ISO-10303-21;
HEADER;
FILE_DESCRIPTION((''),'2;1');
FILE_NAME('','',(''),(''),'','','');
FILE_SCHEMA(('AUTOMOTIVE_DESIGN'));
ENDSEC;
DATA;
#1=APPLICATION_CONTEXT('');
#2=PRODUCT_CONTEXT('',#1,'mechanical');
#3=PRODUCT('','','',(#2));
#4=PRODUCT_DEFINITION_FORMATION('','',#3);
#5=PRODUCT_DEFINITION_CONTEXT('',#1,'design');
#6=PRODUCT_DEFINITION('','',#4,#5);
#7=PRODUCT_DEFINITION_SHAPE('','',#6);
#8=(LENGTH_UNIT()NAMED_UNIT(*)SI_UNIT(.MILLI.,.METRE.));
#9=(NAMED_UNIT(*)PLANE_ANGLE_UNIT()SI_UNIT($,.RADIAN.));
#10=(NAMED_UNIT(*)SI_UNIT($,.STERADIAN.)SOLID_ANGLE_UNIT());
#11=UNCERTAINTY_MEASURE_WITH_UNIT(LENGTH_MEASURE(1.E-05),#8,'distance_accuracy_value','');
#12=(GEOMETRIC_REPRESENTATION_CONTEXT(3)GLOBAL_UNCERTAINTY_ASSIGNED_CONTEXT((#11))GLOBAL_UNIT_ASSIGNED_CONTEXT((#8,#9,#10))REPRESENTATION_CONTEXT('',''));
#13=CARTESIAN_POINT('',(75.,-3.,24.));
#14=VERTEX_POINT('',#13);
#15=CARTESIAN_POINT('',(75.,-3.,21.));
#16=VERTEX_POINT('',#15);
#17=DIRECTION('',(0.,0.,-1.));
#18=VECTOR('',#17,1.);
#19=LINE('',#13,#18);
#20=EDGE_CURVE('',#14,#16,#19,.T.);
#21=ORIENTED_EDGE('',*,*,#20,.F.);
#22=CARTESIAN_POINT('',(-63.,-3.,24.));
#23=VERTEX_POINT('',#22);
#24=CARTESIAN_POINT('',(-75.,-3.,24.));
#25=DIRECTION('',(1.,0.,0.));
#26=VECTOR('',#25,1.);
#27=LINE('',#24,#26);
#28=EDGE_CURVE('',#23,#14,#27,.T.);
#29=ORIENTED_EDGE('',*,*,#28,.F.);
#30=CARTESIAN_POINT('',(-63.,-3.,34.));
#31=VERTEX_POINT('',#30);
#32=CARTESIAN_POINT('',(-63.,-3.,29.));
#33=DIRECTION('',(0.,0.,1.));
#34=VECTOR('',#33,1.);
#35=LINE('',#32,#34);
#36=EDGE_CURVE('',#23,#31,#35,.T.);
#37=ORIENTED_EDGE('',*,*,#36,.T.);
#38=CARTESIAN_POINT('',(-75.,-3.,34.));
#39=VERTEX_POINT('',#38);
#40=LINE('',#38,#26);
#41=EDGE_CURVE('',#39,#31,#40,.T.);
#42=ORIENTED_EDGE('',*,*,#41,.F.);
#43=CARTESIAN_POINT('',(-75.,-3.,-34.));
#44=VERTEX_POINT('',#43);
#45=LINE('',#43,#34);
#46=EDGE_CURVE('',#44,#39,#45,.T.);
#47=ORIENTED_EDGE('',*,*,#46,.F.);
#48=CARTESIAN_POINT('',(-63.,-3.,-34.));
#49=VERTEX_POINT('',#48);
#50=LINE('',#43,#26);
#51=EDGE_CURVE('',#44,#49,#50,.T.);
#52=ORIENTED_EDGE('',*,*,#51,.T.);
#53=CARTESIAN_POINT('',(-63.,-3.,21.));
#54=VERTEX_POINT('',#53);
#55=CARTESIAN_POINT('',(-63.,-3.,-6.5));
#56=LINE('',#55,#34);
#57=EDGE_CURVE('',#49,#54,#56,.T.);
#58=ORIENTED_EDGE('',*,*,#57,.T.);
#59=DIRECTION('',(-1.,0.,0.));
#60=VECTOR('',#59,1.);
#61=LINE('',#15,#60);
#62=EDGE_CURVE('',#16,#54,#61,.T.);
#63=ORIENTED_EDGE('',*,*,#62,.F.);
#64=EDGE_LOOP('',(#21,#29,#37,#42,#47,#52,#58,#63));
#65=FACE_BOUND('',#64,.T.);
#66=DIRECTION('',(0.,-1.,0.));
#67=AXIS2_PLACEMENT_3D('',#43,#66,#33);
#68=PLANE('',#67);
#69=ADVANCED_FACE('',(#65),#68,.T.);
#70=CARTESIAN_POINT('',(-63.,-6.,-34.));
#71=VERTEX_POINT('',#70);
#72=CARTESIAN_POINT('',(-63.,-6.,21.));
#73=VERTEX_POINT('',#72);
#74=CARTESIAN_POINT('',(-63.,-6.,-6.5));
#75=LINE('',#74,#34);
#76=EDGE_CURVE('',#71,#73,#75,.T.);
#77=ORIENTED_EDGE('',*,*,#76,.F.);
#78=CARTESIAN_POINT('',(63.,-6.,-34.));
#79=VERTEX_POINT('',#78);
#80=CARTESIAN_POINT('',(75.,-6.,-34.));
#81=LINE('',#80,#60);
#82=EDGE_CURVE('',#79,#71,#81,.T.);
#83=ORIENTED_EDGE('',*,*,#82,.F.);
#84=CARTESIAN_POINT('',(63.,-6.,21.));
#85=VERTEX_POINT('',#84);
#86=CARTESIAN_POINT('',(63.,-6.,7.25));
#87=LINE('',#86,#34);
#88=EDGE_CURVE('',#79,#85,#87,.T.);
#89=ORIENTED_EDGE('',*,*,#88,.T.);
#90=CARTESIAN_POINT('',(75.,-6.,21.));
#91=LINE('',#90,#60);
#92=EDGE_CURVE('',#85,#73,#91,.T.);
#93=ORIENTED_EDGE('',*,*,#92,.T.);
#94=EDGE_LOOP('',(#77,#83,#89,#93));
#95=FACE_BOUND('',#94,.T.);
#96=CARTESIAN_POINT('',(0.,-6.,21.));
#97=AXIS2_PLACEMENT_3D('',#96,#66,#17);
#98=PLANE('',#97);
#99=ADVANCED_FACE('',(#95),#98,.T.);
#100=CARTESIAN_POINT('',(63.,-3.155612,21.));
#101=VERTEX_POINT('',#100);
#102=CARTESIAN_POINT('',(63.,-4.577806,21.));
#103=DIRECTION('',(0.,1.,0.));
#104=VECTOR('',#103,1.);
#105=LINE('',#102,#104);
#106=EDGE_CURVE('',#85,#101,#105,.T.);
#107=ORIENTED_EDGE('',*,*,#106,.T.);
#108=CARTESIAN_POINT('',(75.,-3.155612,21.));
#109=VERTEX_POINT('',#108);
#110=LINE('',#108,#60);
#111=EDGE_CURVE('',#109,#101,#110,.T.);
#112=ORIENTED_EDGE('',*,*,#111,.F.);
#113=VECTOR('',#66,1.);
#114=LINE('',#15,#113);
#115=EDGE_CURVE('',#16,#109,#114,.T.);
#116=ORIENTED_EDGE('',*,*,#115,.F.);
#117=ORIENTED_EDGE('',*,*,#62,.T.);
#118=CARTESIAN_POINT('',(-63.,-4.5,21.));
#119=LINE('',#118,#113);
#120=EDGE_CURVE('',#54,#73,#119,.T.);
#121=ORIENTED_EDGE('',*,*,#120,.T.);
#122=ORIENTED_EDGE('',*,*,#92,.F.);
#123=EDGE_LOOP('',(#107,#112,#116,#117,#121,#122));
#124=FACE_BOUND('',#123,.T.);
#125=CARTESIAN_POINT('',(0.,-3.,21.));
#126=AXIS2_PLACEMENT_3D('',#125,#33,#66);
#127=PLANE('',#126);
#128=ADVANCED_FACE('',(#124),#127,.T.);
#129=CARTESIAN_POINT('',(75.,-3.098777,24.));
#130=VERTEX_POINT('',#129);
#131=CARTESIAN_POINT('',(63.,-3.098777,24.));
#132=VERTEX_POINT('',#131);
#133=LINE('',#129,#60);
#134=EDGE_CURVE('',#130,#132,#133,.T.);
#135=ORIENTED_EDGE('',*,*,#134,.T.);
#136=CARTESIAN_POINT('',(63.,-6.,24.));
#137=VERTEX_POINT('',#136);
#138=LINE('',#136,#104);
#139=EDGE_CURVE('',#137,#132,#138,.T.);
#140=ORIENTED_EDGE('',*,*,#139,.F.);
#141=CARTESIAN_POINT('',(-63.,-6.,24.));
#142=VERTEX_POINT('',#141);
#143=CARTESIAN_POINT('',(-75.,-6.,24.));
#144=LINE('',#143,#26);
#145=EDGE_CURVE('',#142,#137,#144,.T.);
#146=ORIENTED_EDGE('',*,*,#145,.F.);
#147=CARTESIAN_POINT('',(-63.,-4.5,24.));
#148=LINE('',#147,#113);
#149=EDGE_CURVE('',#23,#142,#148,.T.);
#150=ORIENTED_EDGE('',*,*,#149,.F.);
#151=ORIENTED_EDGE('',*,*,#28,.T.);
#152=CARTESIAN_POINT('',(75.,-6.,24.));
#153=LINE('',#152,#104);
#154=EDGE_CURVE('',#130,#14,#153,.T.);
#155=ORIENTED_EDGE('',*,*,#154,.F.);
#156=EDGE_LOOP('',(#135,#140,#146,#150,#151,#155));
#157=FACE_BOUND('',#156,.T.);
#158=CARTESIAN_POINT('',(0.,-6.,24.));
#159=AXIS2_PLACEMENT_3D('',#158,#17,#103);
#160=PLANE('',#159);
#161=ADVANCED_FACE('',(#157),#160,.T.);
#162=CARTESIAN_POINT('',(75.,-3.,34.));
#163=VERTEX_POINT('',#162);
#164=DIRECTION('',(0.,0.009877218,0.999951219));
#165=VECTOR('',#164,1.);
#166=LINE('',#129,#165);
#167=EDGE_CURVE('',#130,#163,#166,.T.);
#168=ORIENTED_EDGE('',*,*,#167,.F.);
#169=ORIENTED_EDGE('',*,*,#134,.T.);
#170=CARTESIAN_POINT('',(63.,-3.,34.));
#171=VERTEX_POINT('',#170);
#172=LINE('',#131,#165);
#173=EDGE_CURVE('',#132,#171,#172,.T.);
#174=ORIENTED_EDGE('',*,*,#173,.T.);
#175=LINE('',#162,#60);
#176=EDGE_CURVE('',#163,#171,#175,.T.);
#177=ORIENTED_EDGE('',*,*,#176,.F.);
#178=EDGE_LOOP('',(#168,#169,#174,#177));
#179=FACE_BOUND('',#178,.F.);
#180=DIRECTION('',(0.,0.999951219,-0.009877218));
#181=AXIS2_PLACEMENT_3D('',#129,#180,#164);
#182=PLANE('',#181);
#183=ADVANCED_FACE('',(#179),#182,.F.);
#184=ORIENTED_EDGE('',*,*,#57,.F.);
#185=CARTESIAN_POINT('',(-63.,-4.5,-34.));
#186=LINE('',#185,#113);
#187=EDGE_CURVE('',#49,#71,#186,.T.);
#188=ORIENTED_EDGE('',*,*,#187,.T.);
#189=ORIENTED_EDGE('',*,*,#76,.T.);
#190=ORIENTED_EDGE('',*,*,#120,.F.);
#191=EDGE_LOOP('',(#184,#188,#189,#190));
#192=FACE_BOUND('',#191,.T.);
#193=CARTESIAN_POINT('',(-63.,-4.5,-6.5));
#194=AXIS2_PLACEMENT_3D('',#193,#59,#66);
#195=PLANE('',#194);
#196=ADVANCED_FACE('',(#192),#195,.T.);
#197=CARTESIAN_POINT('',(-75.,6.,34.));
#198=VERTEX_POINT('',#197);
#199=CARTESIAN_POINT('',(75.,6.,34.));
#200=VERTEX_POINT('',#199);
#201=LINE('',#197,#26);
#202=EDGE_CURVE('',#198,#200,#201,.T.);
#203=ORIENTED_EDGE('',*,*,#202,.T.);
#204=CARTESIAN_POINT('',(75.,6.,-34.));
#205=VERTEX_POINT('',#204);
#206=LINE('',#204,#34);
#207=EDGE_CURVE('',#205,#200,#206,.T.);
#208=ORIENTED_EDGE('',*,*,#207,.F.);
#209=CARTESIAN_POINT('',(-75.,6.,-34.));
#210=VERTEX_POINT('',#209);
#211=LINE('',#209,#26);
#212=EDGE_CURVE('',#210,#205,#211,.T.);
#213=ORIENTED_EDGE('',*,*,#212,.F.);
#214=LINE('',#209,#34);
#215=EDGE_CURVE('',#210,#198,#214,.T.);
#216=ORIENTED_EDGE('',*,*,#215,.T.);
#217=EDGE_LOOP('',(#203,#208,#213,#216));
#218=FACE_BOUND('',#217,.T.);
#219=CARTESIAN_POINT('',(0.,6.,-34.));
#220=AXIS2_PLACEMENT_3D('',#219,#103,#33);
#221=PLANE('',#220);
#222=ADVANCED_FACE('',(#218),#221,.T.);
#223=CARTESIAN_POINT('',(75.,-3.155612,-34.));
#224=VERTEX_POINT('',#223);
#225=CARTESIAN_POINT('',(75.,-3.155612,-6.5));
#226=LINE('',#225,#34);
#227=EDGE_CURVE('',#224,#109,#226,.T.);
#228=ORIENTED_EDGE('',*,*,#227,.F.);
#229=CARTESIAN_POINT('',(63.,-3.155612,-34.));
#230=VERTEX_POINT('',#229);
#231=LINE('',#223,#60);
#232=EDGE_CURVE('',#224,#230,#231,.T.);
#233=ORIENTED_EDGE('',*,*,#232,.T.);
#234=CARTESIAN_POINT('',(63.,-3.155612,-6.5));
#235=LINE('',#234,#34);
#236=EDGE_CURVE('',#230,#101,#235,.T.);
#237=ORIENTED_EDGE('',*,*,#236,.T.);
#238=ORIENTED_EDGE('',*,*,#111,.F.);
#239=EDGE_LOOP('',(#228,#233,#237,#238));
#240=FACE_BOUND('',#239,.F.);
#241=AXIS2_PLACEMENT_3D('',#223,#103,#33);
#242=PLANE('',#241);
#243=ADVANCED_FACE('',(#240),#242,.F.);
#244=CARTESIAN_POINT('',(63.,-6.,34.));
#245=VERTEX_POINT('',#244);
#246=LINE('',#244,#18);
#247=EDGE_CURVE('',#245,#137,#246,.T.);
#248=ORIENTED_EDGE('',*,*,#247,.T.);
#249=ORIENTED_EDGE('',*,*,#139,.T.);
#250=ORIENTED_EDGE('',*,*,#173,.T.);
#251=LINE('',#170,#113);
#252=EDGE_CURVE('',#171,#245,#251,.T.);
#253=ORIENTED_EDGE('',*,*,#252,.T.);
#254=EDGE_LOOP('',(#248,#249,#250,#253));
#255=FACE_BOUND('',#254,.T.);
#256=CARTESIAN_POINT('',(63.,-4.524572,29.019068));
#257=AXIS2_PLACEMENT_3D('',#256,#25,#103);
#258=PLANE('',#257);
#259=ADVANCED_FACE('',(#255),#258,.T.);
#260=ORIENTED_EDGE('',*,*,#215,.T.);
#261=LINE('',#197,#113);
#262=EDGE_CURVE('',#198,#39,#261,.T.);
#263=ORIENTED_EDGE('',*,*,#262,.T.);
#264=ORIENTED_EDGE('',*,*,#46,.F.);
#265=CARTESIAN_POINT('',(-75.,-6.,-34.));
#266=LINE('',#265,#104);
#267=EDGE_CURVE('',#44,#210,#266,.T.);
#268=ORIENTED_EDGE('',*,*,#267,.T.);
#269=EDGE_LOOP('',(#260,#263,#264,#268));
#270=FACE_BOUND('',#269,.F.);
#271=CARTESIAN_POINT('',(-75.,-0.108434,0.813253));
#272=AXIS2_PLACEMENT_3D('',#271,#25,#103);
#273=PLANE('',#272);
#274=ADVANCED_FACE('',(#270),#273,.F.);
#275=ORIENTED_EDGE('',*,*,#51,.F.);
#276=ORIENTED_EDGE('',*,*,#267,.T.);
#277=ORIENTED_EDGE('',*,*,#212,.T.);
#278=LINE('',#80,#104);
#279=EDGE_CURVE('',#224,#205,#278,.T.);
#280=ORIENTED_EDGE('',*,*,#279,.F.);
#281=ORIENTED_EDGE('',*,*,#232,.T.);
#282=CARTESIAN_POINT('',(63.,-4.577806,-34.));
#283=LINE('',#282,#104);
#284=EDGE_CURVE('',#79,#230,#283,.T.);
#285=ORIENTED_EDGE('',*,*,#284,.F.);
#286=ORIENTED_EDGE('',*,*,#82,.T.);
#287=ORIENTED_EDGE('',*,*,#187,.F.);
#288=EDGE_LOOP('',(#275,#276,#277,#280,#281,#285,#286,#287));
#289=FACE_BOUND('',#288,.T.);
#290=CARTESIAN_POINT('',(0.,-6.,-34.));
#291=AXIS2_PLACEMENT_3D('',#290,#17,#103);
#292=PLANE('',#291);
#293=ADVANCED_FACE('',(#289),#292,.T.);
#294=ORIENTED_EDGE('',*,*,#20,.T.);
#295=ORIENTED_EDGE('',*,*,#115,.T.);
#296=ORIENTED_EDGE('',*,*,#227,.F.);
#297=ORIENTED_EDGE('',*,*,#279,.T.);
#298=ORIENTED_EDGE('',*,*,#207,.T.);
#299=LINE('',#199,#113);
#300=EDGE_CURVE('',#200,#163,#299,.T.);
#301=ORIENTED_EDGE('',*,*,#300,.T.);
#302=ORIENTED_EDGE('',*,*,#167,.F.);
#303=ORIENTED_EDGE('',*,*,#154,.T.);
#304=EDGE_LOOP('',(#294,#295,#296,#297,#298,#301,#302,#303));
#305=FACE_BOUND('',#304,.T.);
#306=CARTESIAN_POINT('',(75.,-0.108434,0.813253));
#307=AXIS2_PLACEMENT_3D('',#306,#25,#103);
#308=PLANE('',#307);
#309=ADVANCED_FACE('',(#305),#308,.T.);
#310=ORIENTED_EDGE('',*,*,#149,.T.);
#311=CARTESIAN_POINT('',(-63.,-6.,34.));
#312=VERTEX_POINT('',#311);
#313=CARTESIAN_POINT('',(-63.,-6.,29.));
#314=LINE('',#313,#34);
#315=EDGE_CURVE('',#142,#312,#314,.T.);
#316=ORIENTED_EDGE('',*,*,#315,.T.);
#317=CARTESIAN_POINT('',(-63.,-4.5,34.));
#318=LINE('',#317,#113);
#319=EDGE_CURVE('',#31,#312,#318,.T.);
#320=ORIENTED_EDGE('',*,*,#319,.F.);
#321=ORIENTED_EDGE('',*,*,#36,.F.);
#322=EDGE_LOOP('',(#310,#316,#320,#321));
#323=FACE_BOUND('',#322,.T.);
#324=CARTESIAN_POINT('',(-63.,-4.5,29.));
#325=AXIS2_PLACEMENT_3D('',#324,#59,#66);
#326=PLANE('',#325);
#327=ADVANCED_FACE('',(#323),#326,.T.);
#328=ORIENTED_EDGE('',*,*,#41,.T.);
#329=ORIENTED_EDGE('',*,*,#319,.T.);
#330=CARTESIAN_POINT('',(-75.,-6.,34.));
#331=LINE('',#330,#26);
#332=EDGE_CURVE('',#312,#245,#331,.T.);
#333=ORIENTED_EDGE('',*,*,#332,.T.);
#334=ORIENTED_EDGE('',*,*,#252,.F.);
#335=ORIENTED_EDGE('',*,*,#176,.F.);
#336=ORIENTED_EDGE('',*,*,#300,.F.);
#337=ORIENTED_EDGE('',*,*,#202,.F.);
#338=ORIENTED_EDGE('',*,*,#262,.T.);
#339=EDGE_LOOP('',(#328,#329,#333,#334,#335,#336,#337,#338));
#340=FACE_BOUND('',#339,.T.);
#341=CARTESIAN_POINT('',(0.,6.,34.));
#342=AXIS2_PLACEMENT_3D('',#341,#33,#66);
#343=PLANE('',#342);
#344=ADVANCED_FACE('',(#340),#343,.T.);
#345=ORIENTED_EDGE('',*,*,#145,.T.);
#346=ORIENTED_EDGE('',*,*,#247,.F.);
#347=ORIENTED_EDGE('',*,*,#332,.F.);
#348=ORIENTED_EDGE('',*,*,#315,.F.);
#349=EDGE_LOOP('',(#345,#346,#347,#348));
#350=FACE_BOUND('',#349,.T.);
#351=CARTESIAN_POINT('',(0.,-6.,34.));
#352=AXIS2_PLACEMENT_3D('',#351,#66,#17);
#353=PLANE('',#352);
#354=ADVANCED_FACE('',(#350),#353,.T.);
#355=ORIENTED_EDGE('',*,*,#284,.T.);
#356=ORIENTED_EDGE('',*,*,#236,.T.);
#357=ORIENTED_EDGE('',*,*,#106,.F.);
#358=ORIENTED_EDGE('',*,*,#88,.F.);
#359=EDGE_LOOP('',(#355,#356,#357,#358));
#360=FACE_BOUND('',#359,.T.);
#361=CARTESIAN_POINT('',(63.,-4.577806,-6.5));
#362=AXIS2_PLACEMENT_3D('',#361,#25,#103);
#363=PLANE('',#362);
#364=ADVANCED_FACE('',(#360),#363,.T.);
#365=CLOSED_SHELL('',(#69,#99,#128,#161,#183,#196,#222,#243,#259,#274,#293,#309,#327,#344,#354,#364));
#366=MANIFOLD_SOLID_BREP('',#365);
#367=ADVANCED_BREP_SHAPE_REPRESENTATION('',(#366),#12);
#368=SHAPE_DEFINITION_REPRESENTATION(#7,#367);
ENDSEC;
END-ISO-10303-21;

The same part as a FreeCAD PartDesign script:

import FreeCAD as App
import Part
import Sketcher

V = App.Vector


def add_polygon(sketch, points):
    """Adds a closed chain of lines whose ends are joined by coincident constraints."""
    first, n = sketch.GeometryCount, len(points)
    for a, b in zip(points, points[1:] + points[:1]):
        sketch.addGeometry(Part.LineSegment(App.Vector(*a, 0), App.Vector(*b, 0)), False)
    for i in range(n):
        sketch.addConstraint(Sketcher.Constraint("Coincident", first + i, 2, first + (i + 1) % n, 1))

doc = App.newDocument("Part")
params = doc.addObject("Spreadsheet::Sheet", "Params")
for row, (alias, value) in enumerate([
    ("sketch1_width", "12 mm"),
    ("sketch1_width2", "3 mm"),
    ("sketch1_height", "68 mm"),
    ("sketch1_height2", "10 mm"),
    ("pad1_length", "150 mm"),
    ("sketch2_height", "55 mm"),
    ("pocket1_length", "12 mm"),
    ("sketch3_width", "3 mm"),
    ("sketch3_height", "10 mm"),
    ("pocket2_length", "12 mm"),
    ("sketch4_width", "3 mm"),
    ("sketch4_height", "55 mm"),
    ("sketch4_height2", "10 mm"),
    ("pocket3_length", "12 mm"),
], start=1):
    params.set(f"A{row}", alias)
    params.set(f"B{row}", "=" + value)
    params.setAlias(f"B{row}", alias)

body = doc.addObject("PartDesign::Body", "Body")

sketch1 = body.newObject("Sketcher::SketchObject", "Sketch")
sketch1.AttachmentSupport = (doc.getObject("YZ_Plane"), [""])
sketch1.MapMode = "FlatFace"
add_polygon(sketch1, [(-6, -34), (6, -34), (6, 34), (-6, 34), (-6, 24), (-3, 24), (-3, 21), (-6, 21)])
sketch1.addConstraint(Sketcher.Constraint("Horizontal", 0))
sketch1.addConstraint(Sketcher.Constraint("Vertical", 1))
sketch1.addConstraint(Sketcher.Constraint("Horizontal", 2))
sketch1.addConstraint(Sketcher.Constraint("Vertical", 3))
sketch1.addConstraint(Sketcher.Constraint("Horizontal", 4))
sketch1.addConstraint(Sketcher.Constraint("Vertical", 5))
sketch1.addConstraint(Sketcher.Constraint("Horizontal", 6))
sketch1.addConstraint(Sketcher.Constraint("Vertical", 7))
sketch1.addConstraint(Sketcher.Constraint("Symmetric", 0, 2, 2, 2, -1, 1))
sketch1.addConstraint(Sketcher.Constraint("Vertical", 3, 2, 6, 2))
sketch1.addConstraint(Sketcher.Constraint("Equal", 6, 5))
sketch1.addConstraint(Sketcher.Constraint("DistanceX", 0, 1, 0, 2, 12.0))
sketch1.addConstraint(Sketcher.Constraint("DistanceX", 4, 1, 4, 2, 3.0))
sketch1.addConstraint(Sketcher.Constraint("DistanceY", 1, 1, 1, 2, 68.0))
sketch1.addConstraint(Sketcher.Constraint("DistanceY", 3, 2, 3, 1, 10.0))
sketch1.setExpression("Constraints[19]", "Params.sketch1_width")
sketch1.setExpression("Constraints[20]", "Params.sketch1_width2")
sketch1.setExpression("Constraints[21]", "Params.sketch1_height")
sketch1.setExpression("Constraints[22]", "Params.sketch1_height2")
pad1 = body.newObject("PartDesign::Pad", "Pad")
pad1.Profile = sketch1
pad1.setExpression("Length", "Params.pad1_length")
pad1.Midplane = True

sketch2 = body.newObject("Sketcher::SketchObject", "Sketch001")
sketch2.AttachmentSupport = (doc.getObject("YZ_Plane"), [""])
sketch2.MapMode = "FlatFace"
sketch2.AttachmentOffset = App.Placement(V(0, 0, 75), App.Rotation())
add_polygon(sketch2, [(-6, 21), (-6, -34), (-3.155612, -34), (-3.155612, 21)])
sketch2.addConstraint(Sketcher.Constraint("Vertical", 0))
sketch2.addConstraint(Sketcher.Constraint("Horizontal", 1))
sketch2.addConstraint(Sketcher.Constraint("Vertical", 2))
sketch2.addConstraint(Sketcher.Constraint("Horizontal", 3))
sketch2.addConstraint(Sketcher.Constraint("DistanceY", 0, 2, 0, 1, 55.0))
sketch2.addConstraint(Sketcher.Constraint("DistanceX", 0, 2, -1, 1, 6.0))
sketch2.addConstraint(Sketcher.Constraint("DistanceY", 0, 2, -1, 1, 34.0))
sketch2.addConstraint(Sketcher.Constraint("DistanceX", 1, 1, 1, 2, 2.844389))
sketch2.setExpression("Constraints[8]", "Params.sketch2_height")
pocket1 = body.newObject("PartDesign::Pocket", "Pocket")
pocket1.Profile = sketch2
pocket1.setExpression("Length", "Params.pocket1_length")

sketch3 = body.newObject("Sketcher::SketchObject", "Sketch002")
sketch3.AttachmentSupport = (doc.getObject("YZ_Plane"), [""])
sketch3.MapMode = "FlatFace"
sketch3.AttachmentOffset = App.Placement(V(0, 0, 75), App.Rotation())
add_polygon(sketch3, [(-6, 24), (-3.098777, 24), (-3, 34), (-6, 34)])
sketch3.addConstraint(Sketcher.Constraint("Horizontal", 0))
sketch3.addConstraint(Sketcher.Constraint("Horizontal", 2))
sketch3.addConstraint(Sketcher.Constraint("Vertical", 3))
sketch3.addConstraint(Sketcher.Constraint("DistanceX", 2, 2, 2, 1, 3.0))
sketch3.addConstraint(Sketcher.Constraint("DistanceY", 3, 2, 3, 1, 10.0))
sketch3.addConstraint(Sketcher.Constraint("DistanceY", -1, 1, 0, 2, 24.0))
sketch3.addConstraint(Sketcher.Constraint("DistanceX", 1, 2, -1, 1, 3.0))
sketch3.addConstraint(Sketcher.Constraint("DistanceX", 0, 1, 0, 2, 2.901223))
sketch3.setExpression("Constraints[7]", "Params.sketch3_width")
sketch3.setExpression("Constraints[8]", "Params.sketch3_height")
pocket2 = body.newObject("PartDesign::Pocket", "Pocket001")
pocket2.Profile = sketch3
pocket2.setExpression("Length", "Params.pocket2_length")

sketch4 = body.newObject("Sketcher::SketchObject", "Sketch003")
sketch4.AttachmentSupport = (doc.getObject("YZ_Plane"), [""])
sketch4.MapMode = "FlatFace"
sketch4.AttachmentOffset = App.Placement(V(0, 0, -75), App.Rotation())
add_polygon(sketch4, [(-3, 21), (-3, -34), (-6, -34), (-6, 21)])
add_polygon(sketch4, [(-3, 34), (-3, 24), (-6, 24), (-6, 34)])
sketch4.addConstraint(Sketcher.Constraint("Vertical", 0))
sketch4.addConstraint(Sketcher.Constraint("Horizontal", 1))
sketch4.addConstraint(Sketcher.Constraint("Vertical", 2))
sketch4.addConstraint(Sketcher.Constraint("Horizontal", 3))
sketch4.addConstraint(Sketcher.Constraint("Vertical", 4))
sketch4.addConstraint(Sketcher.Constraint("Horizontal", 5))
sketch4.addConstraint(Sketcher.Constraint("Vertical", 6))
sketch4.addConstraint(Sketcher.Constraint("Horizontal", 7))
sketch4.addConstraint(Sketcher.Constraint("Symmetric", 1, 2, 6, 2, -1))
sketch4.addConstraint(Sketcher.Constraint("Vertical", 3, 2, 4, 2))
sketch4.addConstraint(Sketcher.Constraint("DistanceX", 1, 2, 1, 1, 3.0))
sketch4.addConstraint(Sketcher.Constraint("DistanceY", 0, 2, 0, 1, 55.0))
sketch4.addConstraint(Sketcher.Constraint("DistanceY", 4, 2, 4, 1, 10.0))
sketch4.addConstraint(Sketcher.Constraint("DistanceX", 0, 2, -1, 1, 3.0))
sketch4.addConstraint(Sketcher.Constraint("DistanceY", 0, 2, -1, 1, 34.0))
sketch4.setExpression("Constraints[18]", "Params.sketch4_width")
sketch4.setExpression("Constraints[19]", "Params.sketch4_height")
sketch4.setExpression("Constraints[20]", "Params.sketch4_height2")
pocket3 = body.newObject("PartDesign::Pocket", "Pocket002")
pocket3.Profile = sketch4
pocket3.setExpression("Length", "Params.pocket3_length")
pocket3.Reversed = True

doc.recompute()
